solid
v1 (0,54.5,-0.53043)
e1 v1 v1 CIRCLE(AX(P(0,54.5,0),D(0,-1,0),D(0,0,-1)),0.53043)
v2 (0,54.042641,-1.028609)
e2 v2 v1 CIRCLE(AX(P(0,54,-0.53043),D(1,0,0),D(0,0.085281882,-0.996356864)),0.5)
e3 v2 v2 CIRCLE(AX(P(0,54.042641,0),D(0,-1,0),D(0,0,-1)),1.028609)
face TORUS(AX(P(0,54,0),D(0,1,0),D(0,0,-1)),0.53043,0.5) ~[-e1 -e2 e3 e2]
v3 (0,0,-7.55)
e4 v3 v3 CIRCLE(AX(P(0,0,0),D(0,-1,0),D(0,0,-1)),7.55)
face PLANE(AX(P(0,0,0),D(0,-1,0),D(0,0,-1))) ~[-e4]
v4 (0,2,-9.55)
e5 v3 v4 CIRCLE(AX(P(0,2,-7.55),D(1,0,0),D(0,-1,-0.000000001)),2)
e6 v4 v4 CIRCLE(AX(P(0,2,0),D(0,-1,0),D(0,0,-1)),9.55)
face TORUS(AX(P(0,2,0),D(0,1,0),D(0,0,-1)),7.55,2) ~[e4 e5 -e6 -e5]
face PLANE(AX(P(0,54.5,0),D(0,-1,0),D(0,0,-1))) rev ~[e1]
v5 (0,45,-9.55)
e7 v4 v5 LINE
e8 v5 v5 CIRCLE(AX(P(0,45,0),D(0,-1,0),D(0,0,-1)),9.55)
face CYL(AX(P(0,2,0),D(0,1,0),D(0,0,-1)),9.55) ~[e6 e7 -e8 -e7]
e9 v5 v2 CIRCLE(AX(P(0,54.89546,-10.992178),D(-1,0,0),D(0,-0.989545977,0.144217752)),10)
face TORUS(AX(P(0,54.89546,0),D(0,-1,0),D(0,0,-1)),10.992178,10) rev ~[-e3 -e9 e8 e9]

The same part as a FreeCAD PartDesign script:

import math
import FreeCAD as App
import Part
import Sketcher

V = App.Vector
Q = App.Units.Quantity

doc = App.newDocument("Part")
body = doc.addObject("PartDesign::Body", "Body")

sketch1 = body.newObject("Sketcher::SketchObject", "Sketch")
sketch1.AttachmentSupport = (doc.getObject("YZ_Plane"), [""])
sketch1.MapMode = "FlatFace"
sketch1.addGeometry(Part.LineSegment(V(0, 0, 0), V(0, -7.5, 0)), False)
sketch1.addGeometry(Part.ArcOfCircle(Part.Circle(V(2, -7.5, 0), V(0, 0, 1), 2), math.radians(-180), math.radians(-90)), False)
sketch1.addGeometry(Part.LineSegment(V(2, -9.6, 0), V(45, -9.6, 0)), False)
sketch1.addGeometry(Part.ArcOfCircle(Part.Circle(V(54.9, -11, 0), V(0, 0, 1), 10), math.radians(95), math.radians(172)), False)
sketch1.addGeometry(Part.ArcOfCircle(Part.Circle(V(54, -0.5, 0), V(0, 0, 1), 0.5), math.radians(-85), math.radians(0)), False)
sketch1.addGeometry(Part.LineSegment(V(54.5, -0.5, 0), V(54.5, 0, 0)), False)
sketch1.addGeometry(Part.LineSegment(V(54.5, 0, 0), V(0, 0, 0)), False)
sketch1.addConstraint(Sketcher.Constraint("Tangent", 0, 2, 1, 1))
sketch1.addConstraint(Sketcher.Constraint("Tangent", 1, 2, 2, 1))
sketch1.addConstraint(Sketcher.Constraint("Coincident", 2, 2, 3, 2))
sketch1.addConstraint(Sketcher.Constraint("Tangent", 3, 1, 4, 1))
sketch1.addConstraint(Sketcher.Constraint("Tangent", 4, 2, 5, 1))
sketch1.addConstraint(Sketcher.Constraint("Coincident", 5, 2, 6, 1))
sketch1.addConstraint(Sketcher.Constraint("Coincident", 6, 2, 0, 1))
sketch1.addConstraint(Sketcher.Constraint("Vertical", 0))
sketch1.addConstraint(Sketcher.Constraint("Horizontal", 2))
sketch1.addConstraint(Sketcher.Constraint("Vertical", 5))
sketch1.addConstraint(Sketcher.Constraint("Horizontal", 6))
sketch1.addConstraint(Sketcher.Constraint("Coincident", 6, 2, -1, 1))
sketch1.addConstraint(Sketcher.Constraint("Radius", 1, Q("2 mm")))
sketch1.addConstraint(Sketcher.Constraint("Radius", 3, Q("10 mm")))
sketch1.addConstraint(Sketcher.Constraint("Radius", 4, Q("0.5 mm")))
sketch1.addConstraint(Sketcher.Constraint("DistanceX", 2, 1, 2, 2, Q("43 mm")))
sketch1.addConstraint(Sketcher.Constraint("DistanceX", 6, 2, 6, 1, Q("54.5 mm")))
sketch1.addConstraint(Sketcher.Constraint("DistanceY", 0, 2, 0, 1, Q("7.55 mm")))
sketch1.addConstraint(Sketcher.Constraint("DistanceY", 5, 1, 5, 2, Q("0.53043 mm")))
revolution = body.newObject("PartDesign::Revolution", "Revolution")
revolution.Profile = sketch1
revolution.ReferenceAxis = (sketch1, ["H_Axis"])
revolution.Angle = 360

doc.recompute()
